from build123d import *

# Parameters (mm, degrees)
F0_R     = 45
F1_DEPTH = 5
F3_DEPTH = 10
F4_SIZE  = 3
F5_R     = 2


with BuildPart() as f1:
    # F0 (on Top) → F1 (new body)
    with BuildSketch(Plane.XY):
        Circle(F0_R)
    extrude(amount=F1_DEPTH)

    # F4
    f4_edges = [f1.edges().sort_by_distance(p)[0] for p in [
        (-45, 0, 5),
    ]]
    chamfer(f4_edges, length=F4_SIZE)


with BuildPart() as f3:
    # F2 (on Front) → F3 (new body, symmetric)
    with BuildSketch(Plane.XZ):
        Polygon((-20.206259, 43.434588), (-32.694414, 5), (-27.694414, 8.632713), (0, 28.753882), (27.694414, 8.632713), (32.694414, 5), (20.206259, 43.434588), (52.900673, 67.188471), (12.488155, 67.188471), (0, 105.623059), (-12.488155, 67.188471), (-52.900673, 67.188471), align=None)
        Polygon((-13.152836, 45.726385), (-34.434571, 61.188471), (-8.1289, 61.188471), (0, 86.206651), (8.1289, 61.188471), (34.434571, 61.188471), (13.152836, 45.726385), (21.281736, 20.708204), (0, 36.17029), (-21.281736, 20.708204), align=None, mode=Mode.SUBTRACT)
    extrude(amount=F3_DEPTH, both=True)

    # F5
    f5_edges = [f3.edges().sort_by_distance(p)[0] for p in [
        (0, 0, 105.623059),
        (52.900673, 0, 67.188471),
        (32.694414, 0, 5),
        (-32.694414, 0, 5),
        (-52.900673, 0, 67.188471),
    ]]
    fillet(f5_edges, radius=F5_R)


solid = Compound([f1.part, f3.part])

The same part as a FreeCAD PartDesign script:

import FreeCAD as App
import Part
import Sketcher

V = App.Vector
Q = App.Units.Quantity


def edges_at(feature, points):
    """Names of the edges that pass closest to the given points."""
    edges = feature.Shape.Edges
    near = lambda p: min(range(len(edges)), key=lambda i: edges[i].distToShape(Part.Vertex(*p))[0])
    return sorted({f"Edge{near(p) + 1}" for p in points})

doc = App.newDocument("Part")
body = doc.addObject("PartDesign::Body", "Body")

# Sketch on XY plane
sketch1 = doc.addObject("Sketcher::SketchObject", "Sketch")
body.addObject(sketch1)
sketch1.AttachmentSupport = (doc.XY_Plane, [""])
sketch1.MapMode = "FlatFace"
sketch1.addGeometry(Part.Circle(V(0, 0, 0), V(0, 0, 1), 45), False)
sketch1.addConstraint([
    Sketcher.Constraint("Coincident", 0, 3, -1, 1),
    Sketcher.Constraint("Diameter", 0, Q("90 mm")),
])
pad1 = doc.addObject("PartDesign::Pad", "Pad")
body.addObject(pad1)
pad1.Profile = sketch1
pad1.Length = 5
doc.recompute()

chamfer = doc.addObject("PartDesign::Chamfer", "Chamfer")
body.addObject(chamfer)
chamfer.Base = (pad1, edges_at(pad1, [(-45, 0, 5)]))
chamfer.Size = 3
body2 = doc.addObject("PartDesign::Body", "Body001")

# Sketch on XZ plane
sketch2 = doc.addObject("Sketcher::SketchObject", "Sketch001")
body2.addObject(sketch2)
sketch2.AttachmentSupport = (doc.getObject("XZ_Plane001"), [""])
sketch2.MapMode = "FlatFace"
sketch2.addGeometry([
    Part.LineSegment(V(-20, 43, 0), V(-33, 5, 0)),  # 0
    Part.LineSegment(V(-33, 5, 0), V(-28, 9, 0)),  # 1
    Part.LineSegment(V(-28, 9, 0), V(0, 29, 0)),  # 2
    Part.LineSegment(V(0, 29, 0), V(28, 9, 0)),  # 3
    Part.LineSegment(V(28, 9, 0), V(33, 5, 0)),  # 4
    Part.LineSegment(V(33, 5, 0), V(20, 43, 0)),  # 5
    Part.LineSegment(V(20, 43, 0), V(53, 67, 0)),  # 6
    Part.LineSegment(V(53, 67, 0), V(12, 67, 0)),  # 7
    Part.LineSegment(V(12, 67, 0), V(0, 106, 0)),  # 8
    Part.LineSegment(V(0, 106, 0), V(-12, 67, 0)),  # 9
    Part.LineSegment(V(-12, 67, 0), V(-53, 67, 0)),  # 10
    Part.LineSegment(V(-53, 67, 0), V(-20, 43, 0)),  # 11
    Part.LineSegment(V(-21, 21, 0), V(-13, 46, 0)),  # 12
    Part.LineSegment(V(-13, 46, 0), V(-34, 61, 0)),  # 13
    Part.LineSegment(V(-34, 61, 0), V(-8, 61, 0)),  # 14
    Part.LineSegment(V(-8, 61, 0), V(0, 86, 0)),  # 15
    Part.LineSegment(V(0, 86, 0), V(8, 61, 0)),  # 16
    Part.LineSegment(V(8, 61, 0), V(34, 61, 0)),  # 17
    Part.LineSegment(V(34, 61, 0), V(13, 46, 0)),  # 18
    Part.LineSegment(V(13, 46, 0), V(21, 21, 0)),  # 19
    Part.LineSegment(V(21, 21, 0), V(0, 36, 0)),  # 20
    Part.LineSegment(V(0, 36, 0), V(-21, 21, 0)),  # 21
], False)
sketch2.addConstraint([
    Sketcher.Constraint("Coincident", 0, 2, 1, 1),
    Sketcher.Constraint("Coincident", 1, 2, 2, 1),
    Sketcher.Constraint("Coincident", 2, 2, 3, 1),
    Sketcher.Constraint("Coincident", 3, 2, 4, 1),
    Sketcher.Constraint("Coincident", 4, 2, 5, 1),
    Sketcher.Constraint("Coincident", 5, 2, 6, 1),
    Sketcher.Constraint("Coincident", 6, 2, 7, 1),
    Sketcher.Constraint("Coincident", 7, 2, 8, 1),
    Sketcher.Constraint("Coincident", 8, 2, 9, 1),
    Sketcher.Constraint("Coincident", 9, 2, 10, 1),
    Sketcher.Constraint("Coincident", 10, 2, 11, 1),
    Sketcher.Constraint("Coincident", 11, 2, 0, 1),
    Sketcher.Constraint("Coincident", 12, 2, 13, 1),
    Sketcher.Constraint("Coincident", 13, 2, 14, 1),
    Sketcher.Constraint("Coincident", 14, 2, 15, 1),
    Sketcher.Constraint("Coincident", 15, 2, 16, 1),
    Sketcher.Constraint("Coincident", 16, 2, 17, 1),
    Sketcher.Constraint("Coincident", 17, 2, 18, 1),
    Sketcher.Constraint("Coincident", 18, 2, 19, 1),
    Sketcher.Constraint("Coincident", 19, 2, 20, 1),
    Sketcher.Constraint("Coincident", 20, 2, 21, 1),
    Sketcher.Constraint("Coincident", 21, 2, 12, 1),
    Sketcher.Constraint("Horizontal", 7),
    Sketcher.Constraint("Horizontal", 10),
    Sketcher.Constraint("Horizontal", 14),
    Sketcher.Constraint("Horizontal", 17),
    Sketcher.Constraint("Symmetric", 1, 2, 3, 2, -2),
    Sketcher.Constraint("Symmetric", 0, 2, 4, 2, -2),
    Sketcher.Constraint("Symmetric", 7, 2, 9, 2, -2),
    Sketcher.Constraint("Symmetric", 5, 2, 11, 2, -2),
    Sketcher.Constraint("Symmetric", 14, 2, 16, 2, -2),
    Sketcher.Constraint("Symmetric", 12, 2, 18, 2, -2),
    Sketcher.Constraint("Symmetric", 19, 2, 21, 2, -2),
    Sketcher.Constraint("PointOnObject", 2, 2, -2),
    Sketcher.Constraint("PointOnObject", 8, 2, -2),
    Sketcher.Constraint("PointOnObject", 15, 2, -2),
    Sketcher.Constraint("PointOnObject", 20, 2, -2),
    Sketcher.Constraint("Parallel", 1, 2),
    Sketcher.Constraint("Parallel", 2, 6),
    Sketcher.Constraint("Parallel", 5, 8),
    Sketcher.Constraint("Parallel", 4, 11),
    Sketcher.Constraint("Parallel", 9, 12),
    Sketcher.Constraint("Parallel", 11, 13),
    Sketcher.Constraint("Parallel", 12, 15),
    Sketcher.Constraint("Parallel", 6, 18),
    Sketcher.Constraint("Parallel", 13, 20),
    Sketcher.Constraint("Equal", 5, 6),
    Sketcher.Constraint("Equal", 6, 8),
    Sketcher.Constraint("Equal", 12, 13),
    Sketcher.Constraint("Equal", 13, 15),
    Sketcher.Constraint("Equal", 19, 20),
    Sketcher.Constraint("Angle", 0, Q("-108 deg")),
    Sketcher.Constraint("Angle", 1, Q("36.000003 deg")),
    Sketcher.Constraint("DistanceY", -1, 1, 0, 2, Q("5 mm")),
    Sketcher.Constraint("DistanceX", 0, 2, 1, 2, Q("5 mm")),
    Sketcher.Constraint("DistanceY", 13, 2, 10, 2, Q("6 mm")),
    Sketcher.Constraint("DistanceX", 14, 1, 14, 2, Q("26.305671 mm")),
    Sketcher.Constraint("DistanceX", 10, 2, 13, 2, Q("18.466102 mm")),
    Sketcher.Constraint("Distance", 6, Q("40.412519 mm")),
])
pad2 = doc.addObject("PartDesign::Pad", "Pad001")
body2.addObject(pad2)
pad2.Profile = sketch2
pad2.Length = 20
pad2.Midplane = True
doc.recompute()

fillet = doc.addObject("PartDesign::Fillet", "Fillet")
body2.addObject(fillet)
fillet.Base = (pad2, edges_at(pad2, [
    (0, 0, 105.623),
    (52.901, 0, 67.188),
    (32.694, 0, 5),
    (-32.694, 0, 5),
    (-52.901, 0, 67.188),
]))
fillet.Radius = 2

doc.recompute()
